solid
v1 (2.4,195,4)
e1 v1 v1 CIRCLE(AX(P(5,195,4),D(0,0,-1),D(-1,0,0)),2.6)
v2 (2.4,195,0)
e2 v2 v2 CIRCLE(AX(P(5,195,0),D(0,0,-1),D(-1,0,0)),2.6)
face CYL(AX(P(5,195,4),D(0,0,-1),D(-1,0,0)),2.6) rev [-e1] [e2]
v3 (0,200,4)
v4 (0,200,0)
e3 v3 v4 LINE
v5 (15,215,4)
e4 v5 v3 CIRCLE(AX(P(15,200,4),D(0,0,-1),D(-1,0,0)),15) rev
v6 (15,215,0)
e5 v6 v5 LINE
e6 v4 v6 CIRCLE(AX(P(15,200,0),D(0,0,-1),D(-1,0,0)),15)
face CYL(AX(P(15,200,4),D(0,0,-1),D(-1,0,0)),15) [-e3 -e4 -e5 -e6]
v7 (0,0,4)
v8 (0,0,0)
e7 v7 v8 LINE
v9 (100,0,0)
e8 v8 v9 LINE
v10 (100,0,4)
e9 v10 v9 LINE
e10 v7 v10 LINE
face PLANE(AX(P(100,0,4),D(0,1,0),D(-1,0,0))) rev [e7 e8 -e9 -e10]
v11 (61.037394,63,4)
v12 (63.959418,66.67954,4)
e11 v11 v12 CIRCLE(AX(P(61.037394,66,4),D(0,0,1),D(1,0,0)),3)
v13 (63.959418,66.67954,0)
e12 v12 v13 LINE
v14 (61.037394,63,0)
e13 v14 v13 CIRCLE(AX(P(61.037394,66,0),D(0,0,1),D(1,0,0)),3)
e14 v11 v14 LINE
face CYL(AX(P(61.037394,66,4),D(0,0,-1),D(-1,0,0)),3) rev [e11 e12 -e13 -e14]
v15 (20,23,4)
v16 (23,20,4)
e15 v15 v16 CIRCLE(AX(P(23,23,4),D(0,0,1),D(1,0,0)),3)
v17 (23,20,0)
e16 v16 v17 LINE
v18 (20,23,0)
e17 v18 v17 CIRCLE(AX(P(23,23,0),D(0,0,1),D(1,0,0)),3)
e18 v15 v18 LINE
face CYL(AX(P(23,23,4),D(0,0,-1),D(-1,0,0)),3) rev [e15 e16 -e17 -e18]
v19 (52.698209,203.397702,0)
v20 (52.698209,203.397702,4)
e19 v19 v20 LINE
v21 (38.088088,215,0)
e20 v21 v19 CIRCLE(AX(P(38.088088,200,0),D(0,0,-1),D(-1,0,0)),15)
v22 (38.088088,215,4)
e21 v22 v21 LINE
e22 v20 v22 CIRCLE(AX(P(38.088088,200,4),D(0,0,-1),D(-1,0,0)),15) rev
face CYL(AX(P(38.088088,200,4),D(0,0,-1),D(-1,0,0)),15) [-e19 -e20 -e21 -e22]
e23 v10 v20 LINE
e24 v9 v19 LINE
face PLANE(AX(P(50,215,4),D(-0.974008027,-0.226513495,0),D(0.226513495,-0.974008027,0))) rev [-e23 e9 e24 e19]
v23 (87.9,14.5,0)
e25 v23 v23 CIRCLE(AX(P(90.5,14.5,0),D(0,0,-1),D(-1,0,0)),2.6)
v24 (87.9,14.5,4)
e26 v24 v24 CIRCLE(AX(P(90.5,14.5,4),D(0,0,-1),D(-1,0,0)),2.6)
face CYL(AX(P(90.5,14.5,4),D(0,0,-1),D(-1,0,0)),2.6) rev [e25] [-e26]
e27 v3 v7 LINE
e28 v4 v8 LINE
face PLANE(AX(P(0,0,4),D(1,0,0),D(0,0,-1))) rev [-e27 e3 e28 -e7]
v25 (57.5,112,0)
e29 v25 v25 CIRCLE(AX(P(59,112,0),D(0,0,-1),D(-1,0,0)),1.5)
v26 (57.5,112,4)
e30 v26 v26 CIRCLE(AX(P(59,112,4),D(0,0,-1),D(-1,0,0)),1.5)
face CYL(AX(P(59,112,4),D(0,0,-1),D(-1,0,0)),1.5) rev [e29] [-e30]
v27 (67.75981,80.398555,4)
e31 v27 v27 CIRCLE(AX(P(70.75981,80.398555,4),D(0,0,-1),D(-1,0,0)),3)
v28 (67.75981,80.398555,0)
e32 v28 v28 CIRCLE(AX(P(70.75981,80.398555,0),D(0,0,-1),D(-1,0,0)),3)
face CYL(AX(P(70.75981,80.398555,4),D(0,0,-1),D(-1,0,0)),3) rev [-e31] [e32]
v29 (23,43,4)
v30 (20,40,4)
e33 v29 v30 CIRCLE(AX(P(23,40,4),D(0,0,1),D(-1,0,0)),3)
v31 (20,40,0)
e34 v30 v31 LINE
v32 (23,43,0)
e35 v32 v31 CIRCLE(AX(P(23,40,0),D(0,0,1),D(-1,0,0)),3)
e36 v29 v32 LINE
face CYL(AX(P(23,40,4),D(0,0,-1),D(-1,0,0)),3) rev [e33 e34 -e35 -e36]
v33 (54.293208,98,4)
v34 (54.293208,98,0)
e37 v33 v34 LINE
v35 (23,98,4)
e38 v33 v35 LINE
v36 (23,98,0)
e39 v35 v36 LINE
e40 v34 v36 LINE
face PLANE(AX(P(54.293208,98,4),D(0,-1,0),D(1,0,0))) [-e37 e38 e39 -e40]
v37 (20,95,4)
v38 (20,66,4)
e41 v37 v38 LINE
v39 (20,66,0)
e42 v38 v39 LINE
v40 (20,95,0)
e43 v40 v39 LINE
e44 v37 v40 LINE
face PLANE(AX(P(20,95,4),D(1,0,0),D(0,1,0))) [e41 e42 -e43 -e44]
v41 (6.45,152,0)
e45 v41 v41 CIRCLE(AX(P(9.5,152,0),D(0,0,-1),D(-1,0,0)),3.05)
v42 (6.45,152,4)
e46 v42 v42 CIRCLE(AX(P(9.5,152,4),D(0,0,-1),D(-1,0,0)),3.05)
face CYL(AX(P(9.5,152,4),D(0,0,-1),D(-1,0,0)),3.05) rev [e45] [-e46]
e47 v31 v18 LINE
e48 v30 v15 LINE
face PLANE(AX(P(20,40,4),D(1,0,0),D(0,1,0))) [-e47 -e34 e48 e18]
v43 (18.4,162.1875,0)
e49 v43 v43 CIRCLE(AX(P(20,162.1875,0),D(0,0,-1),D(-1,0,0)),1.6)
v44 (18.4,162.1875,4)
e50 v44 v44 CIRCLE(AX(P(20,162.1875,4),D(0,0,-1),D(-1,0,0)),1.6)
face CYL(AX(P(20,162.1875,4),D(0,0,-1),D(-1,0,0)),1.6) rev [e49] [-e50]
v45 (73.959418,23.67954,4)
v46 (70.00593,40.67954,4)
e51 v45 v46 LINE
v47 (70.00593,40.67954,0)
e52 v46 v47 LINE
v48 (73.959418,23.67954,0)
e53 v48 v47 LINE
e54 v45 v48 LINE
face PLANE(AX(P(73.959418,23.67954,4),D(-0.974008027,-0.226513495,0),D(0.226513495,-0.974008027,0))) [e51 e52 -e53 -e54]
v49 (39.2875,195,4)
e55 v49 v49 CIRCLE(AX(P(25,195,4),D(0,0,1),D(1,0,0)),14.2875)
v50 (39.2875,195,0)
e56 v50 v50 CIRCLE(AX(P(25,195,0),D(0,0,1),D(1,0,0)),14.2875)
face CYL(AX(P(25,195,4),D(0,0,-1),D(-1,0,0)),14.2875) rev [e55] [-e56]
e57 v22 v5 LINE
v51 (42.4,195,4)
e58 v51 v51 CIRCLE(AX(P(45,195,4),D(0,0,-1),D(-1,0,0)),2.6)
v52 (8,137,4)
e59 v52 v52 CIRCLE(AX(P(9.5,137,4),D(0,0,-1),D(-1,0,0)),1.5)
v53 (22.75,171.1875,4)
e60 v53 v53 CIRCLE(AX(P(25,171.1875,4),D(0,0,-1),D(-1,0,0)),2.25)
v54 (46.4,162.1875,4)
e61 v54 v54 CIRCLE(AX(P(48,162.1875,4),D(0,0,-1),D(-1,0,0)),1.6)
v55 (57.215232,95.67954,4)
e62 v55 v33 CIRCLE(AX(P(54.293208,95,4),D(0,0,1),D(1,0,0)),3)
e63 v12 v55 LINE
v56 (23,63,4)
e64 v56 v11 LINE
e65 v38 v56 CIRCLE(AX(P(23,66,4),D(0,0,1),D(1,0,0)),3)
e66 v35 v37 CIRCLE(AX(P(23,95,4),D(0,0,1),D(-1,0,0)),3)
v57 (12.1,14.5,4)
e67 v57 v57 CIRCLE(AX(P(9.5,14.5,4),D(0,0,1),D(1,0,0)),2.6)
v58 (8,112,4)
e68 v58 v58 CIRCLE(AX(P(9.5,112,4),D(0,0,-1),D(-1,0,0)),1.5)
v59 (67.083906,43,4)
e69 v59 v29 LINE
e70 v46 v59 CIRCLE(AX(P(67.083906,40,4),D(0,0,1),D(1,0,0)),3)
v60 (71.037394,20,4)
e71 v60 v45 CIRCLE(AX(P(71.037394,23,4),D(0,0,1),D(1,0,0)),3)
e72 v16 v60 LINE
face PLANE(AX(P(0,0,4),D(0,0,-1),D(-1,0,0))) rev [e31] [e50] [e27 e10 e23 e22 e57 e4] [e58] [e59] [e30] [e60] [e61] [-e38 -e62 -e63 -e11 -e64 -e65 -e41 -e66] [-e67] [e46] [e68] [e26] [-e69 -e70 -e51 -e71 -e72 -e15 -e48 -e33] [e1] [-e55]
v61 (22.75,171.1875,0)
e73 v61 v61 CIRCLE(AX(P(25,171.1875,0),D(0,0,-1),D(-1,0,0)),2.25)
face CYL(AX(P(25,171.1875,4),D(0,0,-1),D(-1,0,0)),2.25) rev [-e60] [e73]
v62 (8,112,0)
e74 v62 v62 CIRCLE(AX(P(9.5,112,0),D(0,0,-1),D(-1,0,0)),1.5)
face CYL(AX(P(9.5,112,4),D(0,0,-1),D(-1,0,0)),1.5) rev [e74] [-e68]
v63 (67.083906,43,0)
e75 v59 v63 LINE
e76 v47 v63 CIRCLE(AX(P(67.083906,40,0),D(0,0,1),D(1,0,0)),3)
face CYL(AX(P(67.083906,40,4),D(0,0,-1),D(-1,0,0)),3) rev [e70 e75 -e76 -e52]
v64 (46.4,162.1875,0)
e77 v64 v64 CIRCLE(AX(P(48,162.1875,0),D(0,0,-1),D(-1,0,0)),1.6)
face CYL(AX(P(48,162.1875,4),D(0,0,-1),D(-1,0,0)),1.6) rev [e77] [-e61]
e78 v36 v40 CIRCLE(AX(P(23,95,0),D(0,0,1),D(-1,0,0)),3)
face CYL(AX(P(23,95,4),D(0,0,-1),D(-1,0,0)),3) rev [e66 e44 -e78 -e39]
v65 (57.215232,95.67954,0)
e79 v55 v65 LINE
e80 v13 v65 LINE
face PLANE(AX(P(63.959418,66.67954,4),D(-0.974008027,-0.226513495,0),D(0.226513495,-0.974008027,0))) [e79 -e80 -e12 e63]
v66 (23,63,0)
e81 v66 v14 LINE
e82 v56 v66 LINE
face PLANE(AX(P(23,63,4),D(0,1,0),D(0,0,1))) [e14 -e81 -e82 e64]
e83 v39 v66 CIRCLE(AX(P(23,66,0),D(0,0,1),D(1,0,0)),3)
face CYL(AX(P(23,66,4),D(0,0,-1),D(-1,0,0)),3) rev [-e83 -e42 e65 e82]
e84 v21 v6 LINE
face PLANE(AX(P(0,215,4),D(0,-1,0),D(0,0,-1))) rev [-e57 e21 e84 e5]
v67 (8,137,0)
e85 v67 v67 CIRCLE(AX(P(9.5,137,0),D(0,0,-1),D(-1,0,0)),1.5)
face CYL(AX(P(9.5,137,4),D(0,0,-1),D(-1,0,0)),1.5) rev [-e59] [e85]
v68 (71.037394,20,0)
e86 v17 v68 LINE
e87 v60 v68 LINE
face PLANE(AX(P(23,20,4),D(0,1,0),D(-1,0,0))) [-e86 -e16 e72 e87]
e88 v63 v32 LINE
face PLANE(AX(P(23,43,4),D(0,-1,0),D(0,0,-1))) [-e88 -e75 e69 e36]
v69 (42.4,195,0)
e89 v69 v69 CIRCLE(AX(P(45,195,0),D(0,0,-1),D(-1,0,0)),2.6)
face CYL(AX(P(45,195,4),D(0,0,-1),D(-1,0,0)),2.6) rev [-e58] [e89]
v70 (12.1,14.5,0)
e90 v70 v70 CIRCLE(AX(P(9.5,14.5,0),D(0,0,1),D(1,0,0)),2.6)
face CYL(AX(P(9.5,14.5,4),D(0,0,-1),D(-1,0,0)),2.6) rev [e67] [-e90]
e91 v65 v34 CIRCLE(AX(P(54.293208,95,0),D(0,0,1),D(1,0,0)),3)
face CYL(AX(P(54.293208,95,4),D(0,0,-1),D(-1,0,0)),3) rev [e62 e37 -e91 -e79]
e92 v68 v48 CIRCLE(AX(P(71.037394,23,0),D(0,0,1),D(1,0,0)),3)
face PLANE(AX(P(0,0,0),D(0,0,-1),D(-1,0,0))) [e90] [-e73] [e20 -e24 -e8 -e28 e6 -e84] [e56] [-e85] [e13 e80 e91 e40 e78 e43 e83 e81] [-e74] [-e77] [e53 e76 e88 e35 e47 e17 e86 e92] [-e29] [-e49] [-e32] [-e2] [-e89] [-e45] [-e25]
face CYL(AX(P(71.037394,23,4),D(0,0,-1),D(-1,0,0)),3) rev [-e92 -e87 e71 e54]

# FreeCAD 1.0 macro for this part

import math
import FreeCAD as App
import Part
import Sketcher


def edges_at(feature, points):
    """Names of the edges that pass closest to the given points."""
    edges = feature.Shape.Edges
    near = lambda p: min(range(len(edges)), key=lambda i: edges[i].distToShape(Part.Vertex(*p))[0])
    return sorted({f"Edge{near(p) + 1}" for p in points})


def add_polygon(sketch, points):
    """Adds a closed chain of lines whose ends are joined by coincident constraints."""
    first, n = sketch.GeometryCount, len(points)
    for a, b in zip(points, points[1:] + points[:1]):
        sketch.addGeometry(Part.LineSegment(App.Vector(*a, 0), App.Vector(*b, 0)), False)
    for i in range(n):
        sketch.addConstraint(Sketcher.Constraint("Coincident", first + i, 2, first + (i + 1) % n, 1))

doc = App.newDocument("Part")
body = doc.addObject("PartDesign::Body", "Body")

sketch1 = body.newObject("Sketcher::SketchObject", "Sketch")
sketch1.AttachmentSupport = (doc.getObject("XY_Plane"), [""])
sketch1.MapMode = "FlatFace"
add_polygon(sketch1, [(0, 215), (0, 0), (100, 0), (50, 215)])
sketch1.addGeometry(Part.ArcOfCircle(Part.Circle(App.Vector(23, 40, 0), App.Vector(0, 0, 1), 3), math.radians(90), math.radians(180)), False)
sketch1.addGeometry(Part.LineSegment(App.Vector(23, 43, 0), App.Vector(67.083906, 43, 0)), False)
sketch1.addGeometry(Part.ArcOfCircle(Part.Circle(App.Vector(67.083906, 40, 0), App.Vector(0, 0, 1), 3), math.radians(13.091893), math.radians(90)), False)
sketch1.addGeometry(Part.LineSegment(App.Vector(70.00593, 40.67954, 0), App.Vector(73.959418, 23.67954, 0)), False)
sketch1.addGeometry(Part.ArcOfCircle(Part.Circle(App.Vector(71.037394, 23, 0), App.Vector(0, 0, 1), 3), math.radians(-90), math.radians(13.091893)), False)
sketch1.addGeometry(Part.LineSegment(App.Vector(71.037394, 20, 0), App.Vector(23, 20, 0)), False)
sketch1.addGeometry(Part.ArcOfCircle(Part.Circle(App.Vector(23, 23, 0), App.Vector(0, 0, 1), 3), math.radians(180), math.radians(270)), False)
sketch1.addGeometry(Part.LineSegment(App.Vector(20, 23, 0), App.Vector(20, 40, 0)), False)
sketch1.addGeometry(Part.ArcOfCircle(Part.Circle(App.Vector(23, 95, 0), App.Vector(0, 0, 1), 3), math.radians(90), math.radians(180)), False)
sketch1.addGeometry(Part.LineSegment(App.Vector(23, 98, 0), App.Vector(54.293208, 98, 0)), False)
sketch1.addGeometry(Part.ArcOfCircle(Part.Circle(App.Vector(54.293208, 95, 0), App.Vector(0, 0, 1), 3), math.radians(13.091893), math.radians(90)), False)
sketch1.addGeometry(Part.LineSegment(App.Vector(57.215232, 95.67954, 0), App.Vector(63.959418, 66.67954, 0)), False)
sketch1.addGeometry(Part.ArcOfCircle(Part.Circle(App.Vector(61.037394, 66, 0), App.Vector(0, 0, 1), 3), math.radians(-90), math.radians(13.091893)), False)
sketch1.addGeometry(Part.LineSegment(App.Vector(61.037394, 63, 0), App.Vector(23, 63, 0)), False)
sketch1.addGeometry(Part.ArcOfCircle(Part.Circle(App.Vector(23, 66, 0), App.Vector(0, 0, 1), 3), math.radians(180), math.radians(270)), False)
sketch1.addGeometry(Part.LineSegment(App.Vector(20, 66, 0), App.Vector(20, 95, 0)), False)
sketch1.addGeometry(Part.Circle(App.Vector(9.5, 14.5, 0), App.Vector(0, 0, 1), 2.6), False)
sketch1.addGeometry(Part.Circle(App.Vector(25, 195, 0), App.Vector(0, 0, 1), 14.2875), False)
sketch1.addConstraint(Sketcher.Constraint("Tangent", 4, 1, 5, 1))
sketch1.addConstraint(Sketcher.Constraint("Tangent", 5, 2, 6, 2))
sketch1.addConstraint(Sketcher.Constraint("Tangent", 6, 1, 7, 1))
sketch1.addConstraint(Sketcher.Constraint("Tangent", 7, 2, 8, 2))
sketch1.addConstraint(Sketcher.Constraint("Tangent", 8, 1, 9, 1))
sketch1.addConstraint(Sketcher.Constraint("Tangent", 9, 2, 10, 2))
sketch1.addConstraint(Sketcher.Constraint("Tangent", 10, 1, 11, 1))
sketch1.addConstraint(Sketcher.Constraint("Tangent", 11, 2, 4, 2))
sketch1.addConstraint(Sketcher.Constraint("Tangent", 12, 1, 13, 1))
sketch1.addConstraint(Sketcher.Constraint("Tangent", 13, 2, 14, 2))
sketch1.addConstraint(Sketcher.Constraint("Tangent", 14, 1, 15, 1))
sketch1.addConstraint(Sketcher.Constraint("Tangent", 15, 2, 16, 2))
sketch1.addConstraint(Sketcher.Constraint("Tangent", 16, 1, 17, 1))
sketch1.addConstraint(Sketcher.Constraint("Tangent", 17, 2, 18, 2))
sketch1.addConstraint(Sketcher.Constraint("Tangent", 18, 1, 19, 1))
sketch1.addConstraint(Sketcher.Constraint("Tangent", 19, 2, 12, 2))
sketch1.addConstraint(Sketcher.Constraint("Vertical", 0))
sketch1.addConstraint(Sketcher.Constraint("Horizontal", 1))
sketch1.addConstraint(Sketcher.Constraint("Horizontal", 3))
sketch1.addConstraint(Sketcher.Constraint("Horizontal", 5))
sketch1.addConstraint(Sketcher.Constraint("Horizontal", 9))
sketch1.addConstraint(Sketcher.Constraint("Vertical", 11))
sketch1.addConstraint(Sketcher.Constraint("Horizontal", 13))
sketch1.addConstraint(Sketcher.Constraint("Horizontal", 17))
sketch1.addConstraint(Sketcher.Constraint("Vertical", 19))
sketch1.addConstraint(Sketcher.Constraint("Coincident", 0, 2, -1, 1))
sketch1.addConstraint(Sketcher.Constraint("Equal", 4, 6))
sketch1.addConstraint(Sketcher.Constraint("Equal", 6, 8))
sketch1.addConstraint(Sketcher.Constraint("Equal", 8, 10))
sketch1.addConstraint(Sketcher.Constraint("Equal", 10, 12))
sketch1.addConstraint(Sketcher.Constraint("Equal", 12, 14))
sketch1.addConstraint(Sketcher.Constraint("Equal", 14, 16))
sketch1.addConstraint(Sketcher.Constraint("Equal", 16, 18))
sketch1.addConstraint(Sketcher.Constraint("Parallel", 2, 7))
sketch1.addConstraint(Sketcher.Constraint("Parallel", 7, 15))
sketch1.addConstraint(Sketcher.Constraint("Vertical", 10, 3, 12, 3))
sketch1.addConstraint(Sketcher.Constraint("Radius", 4, 3.0))
sketch1.addConstraint(Sketcher.Constraint("Diameter", 20, 5.2))
sketch1.addConstraint(Sketcher.Constraint("DistanceX", 1, 1, 1, 2, 100.0))
sketch1.addConstraint(Sketcher.Constraint("DistanceX", 3, 2, 3, 1, 50.0))
sketch1.addConstraint(Sketcher.Constraint("DistanceY", 0, 2, 0, 1, 215.0))
sketch1.addConstraint(Sketcher.Constraint("DistanceY", 11, 1, 11, 2, 17.0))
sketch1.addConstraint(Sketcher.Constraint("DistanceY", 19, 1, 19, 2, 29.0))
sketch1.addConstraint(Sketcher.Constraint("Diameter", 21, 28.575))
sketch1.addConstraint(Sketcher.Constraint("DistanceX", -1, 1, 4, 3, 23.0))
sketch1.addConstraint(Sketcher.Constraint("DistanceY", -1, 1, 4, 3, 40.0))
sketch1.addConstraint(Sketcher.Constraint("DistanceY", -1, 1, 12, 3, 95.0))
sketch1.addConstraint(Sketcher.Constraint("DistanceX", -1, 1, 21, 3, 25.0))
sketch1.addConstraint(Sketcher.Constraint("DistanceY", -1, 1, 21, 3, 195.0))
sketch1.addConstraint(Sketcher.Constraint("DistanceX", 16, 3, 8, 3, 10.0))
sketch1.addConstraint(Sketcher.Constraint("DistanceX", -1, 1, 20, 3, 9.5))
sketch1.addConstraint(Sketcher.Constraint("DistanceY", -1, 1, 20, 3, 14.5))
sketch1.addConstraint(Sketcher.Constraint("DistanceX", 13, 1, 13, 2, 31.293208))
pad1 = body.newObject("PartDesign::Pad", "Pad")
pad1.Profile = sketch1
pad1.Length = 4
doc.recompute()

fillet = body.newObject("PartDesign::Fillet", "Fillet")
fillet.Base = (pad1, edges_at(pad1, [(0, 215, 2), (50, 215, 2)]))
fillet.Radius = 15

sketch2 = body.newObject("Sketcher::SketchObject", "Sketch001")
sketch2.AttachmentSupport = (doc.getObject("XY_Plane"), [""])
sketch2.MapMode = "FlatFace"
sketch2.addGeometry(Part.Circle(App.Vector(9.5, 112, 0), App.Vector(0, 0, 1), 1.5), False)
sketch2.addGeometry(Part.Circle(App.Vector(90.5, 14.5, 0), App.Vector(0, 0, 1), 2.6), False)
sketch2.addGeometry(Part.Circle(App.Vector(9.5, 137, 0), App.Vector(0, 0, 1), 1.5), False)
sketch2.addGeometry(Part.Circle(App.Vector(9.5, 152, 0), App.Vector(0, 0, 1), 3.05), False)
sketch2.addGeometry(Part.Circle(App.Vector(59, 112, 0), App.Vector(0, 0, 1), 1.5), False)
sketch2.addConstraint(Sketcher.Constraint("Equal", 0, 2))
sketch2.addConstraint(Sketcher.Constraint("Equal", 2, 4))
sketch2.addConstraint(Sketcher.Constraint("Horizontal", 0, 3, 4, 3))
sketch2.addConstraint(Sketcher.Constraint("Vertical", 0, 3, 2, 3))
sketch2.addConstraint(Sketcher.Constraint("Vertical", 2, 3, 3, 3))
sketch2.addConstraint(Sketcher.Constraint("Diameter", 0, 3.0))
sketch2.addConstraint(Sketcher.Constraint("Diameter", 1, 5.2))
sketch2.addConstraint(Sketcher.Constraint("Diameter", 3, 6.1))
sketch2.addConstraint(Sketcher.Constraint("DistanceY", -1, 1, 0, 3, 112.0))
sketch2.addConstraint(Sketcher.Constraint("DistanceY", -1, 1, 2, 3, 137.0))
sketch2.addConstraint(Sketcher.Constraint("DistanceY", -1, 1, 3, 3, 152.0))
sketch2.addConstraint(Sketcher.Constraint("DistanceX", -1, 1, 4, 3, 59.0))
sketch2.addConstraint(Sketcher.Constraint("DistanceX", 0, 3, 1, 3, 81.0))
sketch2.addConstraint(Sketcher.Constraint("DistanceX", -1, 1, 0, 3, 9.5))
sketch2.addConstraint(Sketcher.Constraint("DistanceY", -1, 1, 1, 3, 14.5))
pocket1 = body.newObject("PartDesign::Pocket", "Pocket")
pocket1.Profile = sketch2
pocket1.Type = "ThroughAll"
pocket1.Reversed = True

sketch3 = body.newObject("Sketcher::SketchObject", "Sketch002")
sketch3.AttachmentSupport = (doc.getObject("XY_Plane"), [""])
sketch3.MapMode = "FlatFace"
sketch3.addGeometry(Part.Circle(App.Vector(25, 171.1875, 0), App.Vector(0, 0, 1), 2.25), False)
sketch3.addGeometry(Part.Circle(App.Vector(70.75981, 80.398555, 0), App.Vector(0, 0, 1), 3), False)
sketch3.addGeometry(Part.Circle(App.Vector(20, 162.1875, 0), App.Vector(0, 0, 1), 1.6), False)
sketch3.addGeometry(Part.Circle(App.Vector(48, 162.1875, 0), App.Vector(0, 0, 1), 1.6), False)
sketch3.addGeometry(Part.Circle(App.Vector(45, 195, 0), App.Vector(0, 0, 1), 2.6), False)
sketch3.addGeometry(Part.Circle(App.Vector(5, 195, 0), App.Vector(0, 0, 1), 2.6), False)
sketch3.addConstraint(Sketcher.Constraint("Equal", 2, 3))
sketch3.addConstraint(Sketcher.Constraint("Equal", 4, 5))
sketch3.addConstraint(Sketcher.Constraint("Horizontal", 2, 3, 3, 3))
sketch3.addConstraint(Sketcher.Constraint("Horizontal", 4, 3, 5, 3))
sketch3.addConstraint(Sketcher.Constraint("Diameter", 1, 6.0))
sketch3.addConstraint(Sketcher.Constraint("Diameter", 0, 4.5))
sketch3.addConstraint(Sketcher.Constraint("Diameter", 2, 3.2))
sketch3.addConstraint(Sketcher.Constraint("Diameter", 4, 5.2))
sketch3.addConstraint(Sketcher.Constraint("DistanceX", -1, 1, 0, 3, 25.0))
sketch3.addConstraint(Sketcher.Constraint("DistanceX", -1, 1, 2, 3, 20.0))
sketch3.addConstraint(Sketcher.Constraint("DistanceX", -1, 1, 3, 3, 48.0))
sketch3.addConstraint(Sketcher.Constraint("DistanceX", -1, 1, 4, 3, 45.0))
sketch3.addConstraint(Sketcher.Constraint("DistanceY", -1, 1, 4, 3, 195.0))
sketch3.addConstraint(Sketcher.Constraint("DistanceX", -1, 1, 5, 3, 5.0))
sketch3.addConstraint(Sketcher.Constraint("DistanceY", 2, 3, 0, 3, 9.0))
sketch3.addConstraint(Sketcher.Constraint("DistanceY", -1, 1, 0, 3, 171.1875))
sketch3.addConstraint(Sketcher.Constraint("DistanceX", -1, 1, 1, 3, 70.75981))
sketch3.addConstraint(Sketcher.Constraint("DistanceY", -1, 1, 1, 3, 80.398555))
pocket2 = body.newObject("PartDesign::Pocket", "Pocket001")
pocket2.Profile = sketch3
pocket2.Type = "ThroughAll"
pocket2.Reversed = True

doc.recompute()
